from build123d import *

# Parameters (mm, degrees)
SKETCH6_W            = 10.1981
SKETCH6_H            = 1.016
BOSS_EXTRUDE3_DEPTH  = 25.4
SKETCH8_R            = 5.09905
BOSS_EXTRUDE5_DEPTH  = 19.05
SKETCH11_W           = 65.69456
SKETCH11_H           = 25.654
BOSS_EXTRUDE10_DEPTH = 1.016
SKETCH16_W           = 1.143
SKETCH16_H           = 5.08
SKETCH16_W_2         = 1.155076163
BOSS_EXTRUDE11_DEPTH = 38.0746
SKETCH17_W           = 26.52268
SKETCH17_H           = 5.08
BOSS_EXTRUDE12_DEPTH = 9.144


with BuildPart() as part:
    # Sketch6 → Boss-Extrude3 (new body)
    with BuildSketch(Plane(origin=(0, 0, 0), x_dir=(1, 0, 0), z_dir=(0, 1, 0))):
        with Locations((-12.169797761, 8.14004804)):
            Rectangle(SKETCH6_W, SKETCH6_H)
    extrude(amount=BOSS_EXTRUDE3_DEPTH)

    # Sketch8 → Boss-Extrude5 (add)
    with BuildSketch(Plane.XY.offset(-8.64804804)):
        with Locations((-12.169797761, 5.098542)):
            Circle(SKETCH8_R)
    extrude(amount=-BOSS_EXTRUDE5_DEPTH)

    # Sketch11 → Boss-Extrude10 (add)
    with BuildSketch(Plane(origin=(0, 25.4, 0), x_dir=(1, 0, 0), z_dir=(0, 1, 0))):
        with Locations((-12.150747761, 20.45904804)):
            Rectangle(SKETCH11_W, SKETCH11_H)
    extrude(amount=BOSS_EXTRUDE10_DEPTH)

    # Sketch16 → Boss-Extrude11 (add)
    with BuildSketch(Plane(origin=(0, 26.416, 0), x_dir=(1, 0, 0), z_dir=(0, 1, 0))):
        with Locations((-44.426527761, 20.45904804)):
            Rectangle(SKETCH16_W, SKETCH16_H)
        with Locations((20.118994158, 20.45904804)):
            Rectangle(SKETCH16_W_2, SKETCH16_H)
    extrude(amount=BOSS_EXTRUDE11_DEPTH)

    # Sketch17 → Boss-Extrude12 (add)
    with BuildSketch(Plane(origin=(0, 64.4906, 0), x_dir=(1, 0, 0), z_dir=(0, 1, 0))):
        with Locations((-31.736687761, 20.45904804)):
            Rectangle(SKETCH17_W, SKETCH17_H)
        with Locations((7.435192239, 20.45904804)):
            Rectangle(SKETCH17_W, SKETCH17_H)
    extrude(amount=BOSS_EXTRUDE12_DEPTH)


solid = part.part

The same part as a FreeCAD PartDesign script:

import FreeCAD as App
import Part
import Sketcher
from FreeCAD import Vector
Q = App.Units.Quantity

doc = App.newDocument("Part")
body = doc.addObject("PartDesign::Body", "Body")

sketch1 = body.newObject("Sketcher::SketchObject", "Sketch")
sketch1.AttachmentSupport = (doc.getObject("XZ_Plane"), [""])
sketch1.MapMode = "FlatFace"
sketch1.addGeometry([
    Part.LineSegment(Vector(-17.268848, -8.648048, 0), Vector(-17.268848, -7.632048, 0)),
    Part.LineSegment(Vector(-17.268848, -7.632048, 0), Vector(-7.070748, -7.632048, 0)),
    Part.LineSegment(Vector(-7.070748, -7.632048, 0), Vector(-7.070748, -8.648048, 0)),
    Part.LineSegment(Vector(-7.070748, -8.648048, 0), Vector(-17.268848, -8.648048, 0)),
], False)
sketch1.addConstraint([
    Sketcher.Constraint("Coincident", 0, 2, 1, 1),
    Sketcher.Constraint("Coincident", 1, 2, 2, 1),
    Sketcher.Constraint("Coincident", 2, 2, 3, 1),
    Sketcher.Constraint("Coincident", 3, 2, 0, 1),
    Sketcher.Constraint("Vertical", 0),
    Sketcher.Constraint("Horizontal", 1),
    Sketcher.Constraint("Vertical", 2),
    Sketcher.Constraint("Horizontal", 3),
    Sketcher.Constraint("DistanceY", 0, 1, 0, 2, Q("0.04 in")),
    Sketcher.Constraint("DistanceX", 1, 1, 1, 2, Q("0.4015 in")),
    Sketcher.Constraint("DistanceY", 0, 2, -1, 1, 7.632048),
    Sketcher.Constraint("DistanceX", 0, 2, -1, 1, 17.268848),
])
pad1 = body.newObject("PartDesign::Pad", "Pad")
pad1.Profile = sketch1
pad1.Length = Q("1 in")
pad1.Reversed = True

sketch2 = body.newObject("Sketcher::SketchObject", "Sketch001")
sketch2.AttachmentSupport = (doc.getObject("XY_Plane"), [""])
sketch2.MapMode = "FlatFace"
sketch2.AttachmentOffset = App.Placement(Vector(0, 0, -8.648048), App.Rotation())
sketch2.addGeometry(Part.Circle(Vector(-12.169798, 5.098542, 0), Vector(0, 0, 1), 5.09905), False)
sketch2.addConstraint([
    Sketcher.Constraint("Diameter", 0, Q("0.4015 in")),
    Sketcher.Constraint("DistanceX", 0, 3, -1, 1, 12.169798),
    Sketcher.Constraint("DistanceY", -1, 1, 0, 3, 5.098542),
])
pad2 = body.newObject("PartDesign::Pad", "Pad001")
pad2.Profile = sketch2
pad2.Length = Q("0.75 in")
pad2.Reversed = True

sketch3 = body.newObject("Sketcher::SketchObject", "Sketch002")
sketch3.AttachmentSupport = (doc.getObject("XZ_Plane"), [""])
sketch3.MapMode = "FlatFace"
sketch3.AttachmentOffset = App.Placement(Vector(0, 0, -1 * 25.4), App.Rotation())
sketch3.addGeometry([
    Part.LineSegment(Vector(-44.998028, -33.286048, 0), Vector(-44.998028, -7.632048, 0)),
    Part.LineSegment(Vector(-44.998028, -7.632048, 0), Vector(20.696532, -7.632048, 0)),
    Part.LineSegment(Vector(20.696532, -7.632048, 0), Vector(20.696532, -33.286048, 0)),
    Part.LineSegment(Vector(20.696532, -33.286048, 0), Vector(-44.998028, -33.286048, 0)),
], False)
sketch3.addConstraint([
    Sketcher.Constraint("Coincident", 0, 2, 1, 1),
    Sketcher.Constraint("Coincident", 1, 2, 2, 1),
    Sketcher.Constraint("Coincident", 2, 2, 3, 1),
    Sketcher.Constraint("Coincident", 3, 2, 0, 1),
    Sketcher.Constraint("Vertical", 0),
    Sketcher.Constraint("Horizontal", 1),
    Sketcher.Constraint("Vertical", 2),
    Sketcher.Constraint("Horizontal", 3),
    Sketcher.Constraint("DistanceY", 0, 1, 0, 2, Q("1.01 in")),
    Sketcher.Constraint("DistanceX", 1, 1, 1, 2, Q("2.5864 in")),
    Sketcher.Constraint("DistanceY", 0, 2, -1, 1, 7.632048),
    Sketcher.Constraint("DistanceX", 0, 2, -1, 1, 44.998028),
])
pad3 = body.newObject("PartDesign::Pad", "Pad002")
pad3.Profile = sketch3
pad3.Length = Q("0.04 in")
pad3.Reversed = True

sketch4 = body.newObject("Sketcher::SketchObject", "Sketch003")
sketch4.AttachmentSupport = (doc.getObject("XZ_Plane"), [""])
sketch4.MapMode = "FlatFace"
sketch4.AttachmentOffset = App.Placement(Vector(0, 0, -1.04 * 25.4), App.Rotation())
sketch4.addGeometry([
    Part.LineSegment(Vector(-44.998028, -22.999048, 0), Vector(-44.998028, -17.919048, 0)),
    Part.LineSegment(Vector(-44.998028, -17.919048, 0), Vector(-43.855028, -17.919048, 0)),
    Part.LineSegment(Vector(-43.855028, -17.919048, 0), Vector(-43.855028, -22.999048, 0)),
    Part.LineSegment(Vector(-43.855028, -22.999048, 0), Vector(-44.998028, -22.999048, 0)),
    Part.LineSegment(Vector(19.541456, -22.999048, 0), Vector(19.541456, -17.919048, 0)),
    Part.LineSegment(Vector(19.541456, -17.919048, 0), Vector(20.696532, -17.919048, 0)),
    Part.LineSegment(Vector(20.696532, -17.919048, 0), Vector(20.696532, -22.999048, 0)),
    Part.LineSegment(Vector(20.696532, -22.999048, 0), Vector(19.541456, -22.999048, 0)),
], False)
sketch4.addConstraint([
    Sketcher.Constraint("Coincident", 0, 2, 1, 1),
    Sketcher.Constraint("Coincident", 1, 2, 2, 1),
    Sketcher.Constraint("Coincident", 2, 2, 3, 1),
    Sketcher.Constraint("Coincident", 3, 2, 0, 1),
    Sketcher.Constraint("Coincident", 4, 2, 5, 1),
    Sketcher.Constraint("Coincident", 5, 2, 6, 1),
    Sketcher.Constraint("Coincident", 6, 2, 7, 1),
    Sketcher.Constraint("Coincident", 7, 2, 4, 1),
    Sketcher.Constraint("Vertical", 0),
    Sketcher.Constraint("Horizontal", 1),
    Sketcher.Constraint("Vertical", 2),
    Sketcher.Constraint("Horizontal", 3),
    Sketcher.Constraint("Vertical", 4),
    Sketcher.Constraint("Horizontal", 5),
    Sketcher.Constraint("Vertical", 6),
    Sketcher.Constraint("Horizontal", 7),
    Sketcher.Constraint("Horizontal", 1, 2, 4, 2),
    Sketcher.Constraint("Horizontal", 3, 2, 6, 2),
    Sketcher.Constraint("DistanceY", 0, 1, 0, 2, Q("0.2 in")),
    Sketcher.Constraint("DistanceX", 1, 1, 1, 2, Q("0.045 in")),
    Sketcher.Constraint("DistanceX", 1, 2, 5, 2, Q("2.5414 in")),
    Sketcher.Constraint("DistanceX", 5, 1, 5, 2, 1.155076),
    Sketcher.Constraint("DistanceY", 0, 2, -1, 1, 17.919048),
    Sketcher.Constraint("DistanceX", 0, 2, -1, 1, 44.998028),
])
pad4 = body.newObject("PartDesign::Pad", "Pad003")
pad4.Profile = sketch4
pad4.Length = Q("1.499 in")
pad4.Reversed = True

sketch5 = body.newObject("Sketcher::SketchObject", "Sketch004")
sketch5.AttachmentSupport = (doc.getObject("XZ_Plane"), [""])
sketch5.MapMode = "FlatFace"
sketch5.AttachmentOffset = App.Placement(Vector(0, 0, -2.539 * 25.4), App.Rotation())
sketch5.addGeometry([
    Part.LineSegment(Vector(-44.998028, -22.999048, 0), Vector(-44.998028, -17.919048, 0)),
    Part.LineSegment(Vector(-44.998028, -17.919048, 0), Vector(-18.475348, -17.919048, 0)),
    Part.LineSegment(Vector(-18.475348, -17.919048, 0), Vector(-18.475348, -22.999048, 0)),
    Part.LineSegment(Vector(-18.475348, -22.999048, 0), Vector(-44.998028, -22.999048, 0)),
    Part.LineSegment(Vector(-5.826148, -22.999048, 0), Vector(-5.826148, -17.919048, 0)),
    Part.LineSegment(Vector(-5.826148, -17.919048, 0), Vector(20.696532, -17.919048, 0)),
    Part.LineSegment(Vector(20.696532, -17.919048, 0), Vector(20.696532, -22.999048, 0)),
    Part.LineSegment(Vector(20.696532, -22.999048, 0), Vector(-5.826148, -22.999048, 0)),
], False)
sketch5.addConstraint([
    Sketcher.Constraint("Coincident", 0, 2, 1, 1),
    Sketcher.Constraint("Coincident", 1, 2, 2, 1),
    Sketcher.Constraint("Coincident", 2, 2, 3, 1),
    Sketcher.Constraint("Coincident", 3, 2, 0, 1),
    Sketcher.Constraint("Coincident", 4, 2, 5, 1),
    Sketcher.Constraint("Coincident", 5, 2, 6, 1),
    Sketcher.Constraint("Coincident", 6, 2, 7, 1),
    Sketcher.Constraint("Coincident", 7, 2, 4, 1),
    Sketcher.Constraint("Vertical", 0),
    Sketcher.Constraint("Horizontal", 1),
    Sketcher.Constraint("Vertical", 2),
    Sketcher.Constraint("Horizontal", 3),
    Sketcher.Constraint("Vertical", 4),
    Sketcher.Constraint("Horizontal", 5),
    Sketcher.Constraint("Vertical", 6),
    Sketcher.Constraint("Horizontal", 7),
    Sketcher.Constraint("Horizontal", 1, 2, 4, 2),
    Sketcher.Constraint("Horizontal", 3, 2, 6, 2),
    Sketcher.Constraint("Equal", 3, 5),
    Sketcher.Constraint("DistanceY", 0, 1, 0, 2, Q("0.2 in")),
    Sketcher.Constraint("DistanceX", 1, 1, 1, 2, Q("1.0442 in")),
    Sketcher.Constraint("DistanceX", 1, 2, 4, 2, Q("0.498 in")),
    Sketcher.Constraint("DistanceY", 0, 2, -1, 1, 17.919048),
    Sketcher.Constraint("DistanceX", 0, 2, -1, 1, 44.998028),
])
pad5 = body.newObject("PartDesign::Pad", "Pad004")
pad5.Profile = sketch5
pad5.Length = Q("0.36 in")
pad5.Reversed = True

doc.recompute()
